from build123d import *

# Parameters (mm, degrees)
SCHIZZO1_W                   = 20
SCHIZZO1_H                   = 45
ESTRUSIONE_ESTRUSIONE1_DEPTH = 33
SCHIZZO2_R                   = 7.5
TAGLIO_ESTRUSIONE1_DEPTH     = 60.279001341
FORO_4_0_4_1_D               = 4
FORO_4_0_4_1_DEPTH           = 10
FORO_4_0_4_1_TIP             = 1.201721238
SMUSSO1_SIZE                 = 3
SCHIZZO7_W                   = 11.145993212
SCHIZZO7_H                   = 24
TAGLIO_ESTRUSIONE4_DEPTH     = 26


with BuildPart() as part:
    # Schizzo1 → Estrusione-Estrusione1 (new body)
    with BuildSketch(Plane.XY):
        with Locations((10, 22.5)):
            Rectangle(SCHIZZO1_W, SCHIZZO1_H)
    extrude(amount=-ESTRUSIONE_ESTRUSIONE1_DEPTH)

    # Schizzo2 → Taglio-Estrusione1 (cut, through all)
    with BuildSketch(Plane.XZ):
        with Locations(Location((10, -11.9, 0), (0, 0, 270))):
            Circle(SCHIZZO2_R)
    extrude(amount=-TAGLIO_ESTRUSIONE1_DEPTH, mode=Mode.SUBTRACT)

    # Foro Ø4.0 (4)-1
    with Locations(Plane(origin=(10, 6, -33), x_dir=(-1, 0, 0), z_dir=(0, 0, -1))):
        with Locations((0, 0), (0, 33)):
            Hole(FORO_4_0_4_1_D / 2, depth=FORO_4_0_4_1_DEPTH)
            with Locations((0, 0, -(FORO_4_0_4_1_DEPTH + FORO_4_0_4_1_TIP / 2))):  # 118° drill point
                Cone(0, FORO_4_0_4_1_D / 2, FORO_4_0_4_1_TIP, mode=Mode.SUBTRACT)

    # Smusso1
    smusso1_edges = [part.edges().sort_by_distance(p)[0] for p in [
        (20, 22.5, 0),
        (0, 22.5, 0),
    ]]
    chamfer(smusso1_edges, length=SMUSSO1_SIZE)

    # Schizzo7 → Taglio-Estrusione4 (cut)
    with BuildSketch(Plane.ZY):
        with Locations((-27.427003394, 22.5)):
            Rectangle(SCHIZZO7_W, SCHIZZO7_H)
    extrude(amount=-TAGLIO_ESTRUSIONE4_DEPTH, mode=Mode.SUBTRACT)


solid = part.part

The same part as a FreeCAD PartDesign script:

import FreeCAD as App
import Part
import Sketcher

V = App.Vector
Q = App.Units.Quantity


def edges_at(feature, points):
    """Names of the edges that pass closest to the given points."""
    edges = feature.Shape.Edges
    near = lambda p: min(range(len(edges)), key=lambda i: edges[i].distToShape(Part.Vertex(*p))[0])
    return sorted({f"Edge{near(p) + 1}" for p in points})


def add_polygon(sketch, points):
    """Adds a closed chain of lines whose ends are joined by coincident constraints."""
    first, n = sketch.GeometryCount, len(points)
    for a, b in zip(points, points[1:] + points[:1]):
        sketch.addGeometry(Part.LineSegment(App.Vector(*a, 0), App.Vector(*b, 0)), False)
    for i in range(n):
        sketch.addConstraint(Sketcher.Constraint("Coincident", first + i, 2, first + (i + 1) % n, 1))

doc = App.newDocument("Part")
body = doc.addObject("PartDesign::Body", "Body")

# Sketch on XY plane
sketch1 = doc.addObject("Sketcher::SketchObject", "Sketch")
body.addObject(sketch1)
sketch1.AttachmentSupport = (doc.XY_Plane, [""])
sketch1.MapMode = "FlatFace"
add_polygon(sketch1, [(0, 45), (0, 0), (20, 0), (20, 45)])  # lines 0-3
sketch1.addConstraint([
    Sketcher.Constraint("Vertical", 0),
    Sketcher.Constraint("Horizontal", 1),
    Sketcher.Constraint("Vertical", 2),
    Sketcher.Constraint("Horizontal", 3),
    Sketcher.Constraint("Coincident", 0, 2, -1, 1),
    Sketcher.Constraint("DistanceX", 1, 1, 1, 2, Q("20 mm")),
    Sketcher.Constraint("DistanceY", 0, 2, 0, 1, Q("45 mm")),
])
pad1 = doc.addObject("PartDesign::Pad", "Pad")
body.addObject(pad1)
pad1.Profile = sketch1
pad1.Length = 33
pad1.Reversed = True

# Sketch on XZ plane
sketch2 = doc.addObject("Sketcher::SketchObject", "Sketch001")
body.addObject(sketch2)
sketch2.AttachmentSupport = (doc.XZ_Plane, [""])
sketch2.MapMode = "FlatFace"
sketch2.addGeometry(Part.Circle(V(10, -12, 0), V(0, 0, 1), 8), False)
sketch2.addConstraint([
    Sketcher.Constraint("Diameter", 0, Q("15 mm")),
    Sketcher.Constraint("DistanceX", -1, 1, 0, 3, Q("10 mm")),
    Sketcher.Constraint("DistanceY", 0, 3, -1, 1, Q("11.9 mm")),
])
pocket1 = doc.addObject("PartDesign::Pocket", "Pocket")
body.addObject(pocket1)
pocket1.Profile = sketch2
pocket1.Type = "ThroughAll"

# Sketch on XY plane
sketch3 = doc.addObject("Sketcher::SketchObject", "Sketch002")
body.addObject(sketch3)
sketch3.AttachmentSupport = (doc.XY_Plane, [""])
sketch3.MapMode = "FlatFace"
sketch3.AttachmentOffset = App.Placement(V(0, 0, -33), App.Rotation())
sketch3.addGeometry([
    Part.Circle(V(10, 6, 0), V(0, 0, 1), 2),
    Part.Circle(V(10, 39, 0), V(0, 0, 1), 2),
], False)
sketch3.addConstraint([
    Sketcher.Constraint("Equal", 0, 1),
    Sketcher.Constraint("Vertical", 0, 3, 1, 3),
    Sketcher.Constraint("Diameter", 0, Q("4 mm")),
    Sketcher.Constraint("DistanceX", -1, 1, 0, 3, Q("10 mm")),
    Sketcher.Constraint("DistanceY", -1, 1, 0, 3, Q("6 mm")),
    Sketcher.Constraint("DistanceY", -1, 1, 1, 3, Q("39 mm")),
])
doc.recompute()
hole = doc.addObject("PartDesign::Hole", "Hole")
body.addObject(hole)
hole.Profile = sketch3
hole.ThreadType = "None"
hole.Diameter = 4
hole.DepthType = "Dimension"
hole.Depth = 10
hole.DrillPoint = "Angled"
hole.DrillPointAngle = 118
hole.Reversed = True
doc.recompute()

chamfer = doc.addObject("PartDesign::Chamfer", "Chamfer")
body.addObject(chamfer)
chamfer.Base = (hole, edges_at(hole, [(20, 22.5, 0), (0, 22.5, 0)]))
chamfer.Size = 3

# Sketch on YZ plane
sketch4 = doc.addObject("Sketcher::SketchObject", "Sketch003")
body.addObject(sketch4)
sketch4.AttachmentSupport = (doc.YZ_Plane, [""])
sketch4.MapMode = "FlatFace"
add_polygon(sketch4, [(34, -33), (10, -33), (10, -22), (34, -22)])  # lines 0-3
sketch4.addConstraint([
    Sketcher.Constraint("Horizontal", 0),
    Sketcher.Constraint("Vertical", 1),
    Sketcher.Constraint("Horizontal", 2),
    Sketcher.Constraint("Vertical", 3),
    Sketcher.Constraint("DistanceX", 0, 2, 0, 1, Q("24 mm")),
    Sketcher.Constraint("DistanceY", 0, 2, -1, 1, Q("33 mm")),
    Sketcher.Constraint("DistanceX", -1, 1, 0, 2, Q("10.5 mm")),
    Sketcher.Constraint("DistanceY", 1, 1, 1, 2, Q("11.145993 mm")),
])
pocket2 = doc.addObject("PartDesign::Pocket", "Pocket001")
body.addObject(pocket2)
pocket2.Profile = sketch4
pocket2.Length = 26
pocket2.Reversed = True

doc.recompute()
